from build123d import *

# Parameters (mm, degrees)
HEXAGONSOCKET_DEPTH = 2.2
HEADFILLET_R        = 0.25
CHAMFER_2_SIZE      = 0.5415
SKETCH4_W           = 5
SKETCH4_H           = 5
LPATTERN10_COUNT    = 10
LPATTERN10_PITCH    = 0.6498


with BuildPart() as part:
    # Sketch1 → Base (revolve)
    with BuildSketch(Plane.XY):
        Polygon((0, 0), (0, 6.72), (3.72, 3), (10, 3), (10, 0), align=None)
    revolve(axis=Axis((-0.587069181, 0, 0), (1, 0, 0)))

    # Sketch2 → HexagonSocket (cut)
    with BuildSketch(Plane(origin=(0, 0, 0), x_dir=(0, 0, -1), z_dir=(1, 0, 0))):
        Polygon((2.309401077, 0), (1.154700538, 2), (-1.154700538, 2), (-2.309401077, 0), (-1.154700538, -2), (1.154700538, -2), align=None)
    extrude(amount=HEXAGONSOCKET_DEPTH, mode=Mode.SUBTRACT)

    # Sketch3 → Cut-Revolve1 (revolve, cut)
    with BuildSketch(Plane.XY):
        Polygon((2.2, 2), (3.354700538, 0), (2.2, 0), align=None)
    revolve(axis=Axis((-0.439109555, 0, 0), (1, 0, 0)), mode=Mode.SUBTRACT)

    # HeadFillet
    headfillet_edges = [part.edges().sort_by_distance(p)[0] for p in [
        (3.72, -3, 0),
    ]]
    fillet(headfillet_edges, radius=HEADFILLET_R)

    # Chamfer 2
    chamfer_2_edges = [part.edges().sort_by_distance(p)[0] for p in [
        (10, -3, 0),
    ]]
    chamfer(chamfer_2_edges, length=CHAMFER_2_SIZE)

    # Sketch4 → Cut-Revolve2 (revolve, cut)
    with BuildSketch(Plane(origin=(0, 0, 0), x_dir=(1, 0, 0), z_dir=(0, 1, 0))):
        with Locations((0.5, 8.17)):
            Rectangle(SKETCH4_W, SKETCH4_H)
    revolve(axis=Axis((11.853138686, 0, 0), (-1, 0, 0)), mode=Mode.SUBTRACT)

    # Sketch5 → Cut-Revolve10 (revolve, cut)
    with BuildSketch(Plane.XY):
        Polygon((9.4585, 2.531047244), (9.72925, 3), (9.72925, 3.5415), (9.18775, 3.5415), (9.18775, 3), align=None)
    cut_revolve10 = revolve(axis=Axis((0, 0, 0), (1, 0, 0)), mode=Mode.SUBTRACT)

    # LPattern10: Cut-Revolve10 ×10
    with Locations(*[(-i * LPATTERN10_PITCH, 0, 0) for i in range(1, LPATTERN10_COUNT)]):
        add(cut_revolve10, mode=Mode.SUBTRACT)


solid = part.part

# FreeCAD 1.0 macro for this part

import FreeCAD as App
import Part
import Sketcher
Q = App.Units.Quantity


def edges_at(feature, points):
    """Names of the edges that pass closest to the given points."""
    edges = feature.Shape.Edges
    near = lambda p: min(range(len(edges)), key=lambda i: edges[i].distToShape(Part.Vertex(*p))[0])
    return sorted({f"Edge{near(p) + 1}" for p in points})


def add_polygon(sketch, points):
    """Adds a closed chain of lines whose ends are joined by coincident constraints."""
    first, n = sketch.GeometryCount, len(points)
    for a, b in zip(points, points[1:] + points[:1]):
        sketch.addGeometry(Part.LineSegment(App.Vector(*a, 0), App.Vector(*b, 0)), False)
    for i in range(n):
        sketch.addConstraint(Sketcher.Constraint("Coincident", first + i, 2, first + (i + 1) % n, 1))

doc = App.newDocument("Part")
body = doc.addObject("PartDesign::Body", "Body")

# Sketch on XY plane
sketch1 = doc.addObject("Sketcher::SketchObject", "Sketch")
body.addObject(sketch1)
sketch1.AttachmentSupport = (doc.XY_Plane, [""])
sketch1.MapMode = "FlatFace"
add_polygon(sketch1, [(0, 6.7), (0, 0), (10, 0), (10, 3), (3.7, 3)])  # lines 0-4
sketch1.addConstraint([
    Sketcher.Constraint("Vertical", 0),
    Sketcher.Constraint("Horizontal", 1),
    Sketcher.Constraint("Vertical", 2),
    Sketcher.Constraint("Horizontal", 3),
    Sketcher.Constraint("Coincident", 0, 2, -1, 1),
    Sketcher.Constraint("DistanceX", 1, 1, 1, 2, 10.0),
    Sketcher.Constraint("DistanceY", 2, 1, 2, 2, 3.0),
    Sketcher.Constraint("Angle", 4, Q("135 deg")),
    Sketcher.Constraint("DistanceX", 3, 2, 3, 1, 6.28),
])
revolution = doc.addObject("PartDesign::Revolution", "Revolution")
body.addObject(revolution)
revolution.Profile = sketch1
revolution.ReferenceAxis = (sketch1, ["H_Axis"])
revolution.Angle = 360

# Sketch on YZ plane
sketch2 = doc.addObject("Sketcher::SketchObject", "Sketch001")
body.addObject(sketch2)
sketch2.AttachmentSupport = (doc.YZ_Plane, [""])
sketch2.MapMode = "FlatFace"
add_polygon(sketch2, [(0, -2.3), (2, -1.2), (2, 1.2), (0, 2.3), (-2, 1.2), (-2, -1.2)])  # lines 0-5
sketch2.addConstraint([
    Sketcher.Constraint("Vertical", 1),
    Sketcher.Constraint("Vertical", 4),
    Sketcher.Constraint("Symmetric", 0, 2, 3, 2, -1, 1),
    Sketcher.Constraint("Symmetric", 2, 2, 5, 2, -1, 1),
    Sketcher.Constraint("PointOnObject", 2, 2, -2),
    Sketcher.Constraint("Parallel", 2, 5),
    Sketcher.Constraint("Horizontal", 1, 2, 3, 2),
    Sketcher.Constraint("Angle", 0, Q("30 deg")),
    Sketcher.Constraint("DistanceX", -1, 1, 0, 2, 2.0),
    Sketcher.Constraint("DistanceY", 1, 1, 1, 2, 2.309401),
])
pocket1 = doc.addObject("PartDesign::Pocket", "Pocket")
body.addObject(pocket1)
pocket1.Profile = sketch2
pocket1.Length = 2.2
pocket1.Reversed = True

# Sketch on XY plane
sketch3 = doc.addObject("Sketcher::SketchObject", "Sketch002")
body.addObject(sketch3)
sketch3.AttachmentSupport = (doc.XY_Plane, [""])
sketch3.MapMode = "FlatFace"
add_polygon(sketch3, [(3.4, 0), (2.2, 2), (2.2, 0)])  # lines 0-2
sketch3.addConstraint([
    Sketcher.Constraint("Vertical", 1),
    Sketcher.Constraint("Horizontal", 2),
    Sketcher.Constraint("PointOnObject", 1, 2, -1),
    Sketcher.Constraint("DistanceY", 1, 2, 1, 1, 2.0),
    Sketcher.Constraint("Angle", 0, Q("120 deg")),
    Sketcher.Constraint("DistanceX", -1, 1, 0, 2, 2.2),
])
groove = doc.addObject("PartDesign::Groove", "Groove")
body.addObject(groove)
groove.Profile = sketch3
groove.ReferenceAxis = (sketch3, ["H_Axis"])
groove.Angle = 360
doc.recompute()

fillet = doc.addObject("PartDesign::Fillet", "Fillet")
body.addObject(fillet)
fillet.Base = (groove, edges_at(groove, [(3.72, -3, 0)]))
fillet.Radius = 0.25
doc.recompute()

chamfer = doc.addObject("PartDesign::Chamfer", "Chamfer")
body.addObject(chamfer)
chamfer.Base = (fillet, edges_at(fillet, [(10, -3, 0)]))
chamfer.Size = 0.5415

# Sketch on XZ plane
sketch4 = doc.addObject("Sketcher::SketchObject", "Sketch003")
body.addObject(sketch4)
sketch4.AttachmentSupport = (doc.XZ_Plane, [""])
sketch4.MapMode = "FlatFace"
add_polygon(sketch4, [(-2, -11), (-2, -6), (3, -6), (3, -11)])  # lines 0-3
sketch4.addConstraint([
    Sketcher.Constraint("Vertical", 0),
    Sketcher.Constraint("Horizontal", 1),
    Sketcher.Constraint("Vertical", 2),
    Sketcher.Constraint("Horizontal", 3),
    Sketcher.Constraint("Equal", 3, 0),
    Sketcher.Constraint("DistanceX", 1, 1, 1, 2, 5.0),
    Sketcher.Constraint("DistanceX", 0, 2, -1, 1, 2.0),
    Sketcher.Constraint("DistanceY", 0, 2, -1, 1, 5.67),
])
groove2 = doc.addObject("PartDesign::Groove", "Groove001")
body.addObject(groove2)
groove2.Profile = sketch4
groove2.ReferenceAxis = (sketch4, ["H_Axis"])
groove2.Angle = 360

# Sketch on XY plane
sketch5 = doc.addObject("Sketcher::SketchObject", "Sketch004")
body.addObject(sketch5)
sketch5.AttachmentSupport = (doc.XY_Plane, [""])
sketch5.MapMode = "FlatFace"
add_polygon(sketch5, [(9.5, 2.5), (9.7, 3), (9.7, 3.5), (9.2, 3.5), (9.2, 3)])  # lines 0-4
sketch5.addConstraint([
    Sketcher.Constraint("Vertical", 1),
    Sketcher.Constraint("Horizontal", 2),
    Sketcher.Constraint("Vertical", 3),
    Sketcher.Constraint("Horizontal", 0, 2, 3, 2),
    Sketcher.Constraint("Equal", 2, 1),
    Sketcher.Constraint("Equal", 0, 4),
    Sketcher.Constraint("Angle", 0, Q("60 deg")),
    Sketcher.Constraint("DistanceY", -1, 1, 0, 2, 3.0),
    Sketcher.Constraint("DistanceX", 2, 2, 2, 1, 0.5415),
    Sketcher.Constraint("DistanceX", -1, 1, 4, 2, 9.4585),
])
groove3 = doc.addObject("PartDesign::Groove", "Groove002")
body.addObject(groove3)
groove3.Profile = sketch5
groove3.ReferenceAxis = (sketch5, ["H_Axis"])
groove3.Angle = 360
doc.recompute()

linearpattern = doc.addObject("PartDesign::LinearPattern", "LinearPattern")
body.addObject(linearpattern)
linearpattern.Originals = [groove3]
linearpattern.Direction = (doc.X_Axis, [""])
linearpattern.Mode = "offset"
linearpattern.Offset = 0.6498
linearpattern.Occurrences = 10
linearpattern.Reversed = True
body.Tip = linearpattern

doc.recompute()
